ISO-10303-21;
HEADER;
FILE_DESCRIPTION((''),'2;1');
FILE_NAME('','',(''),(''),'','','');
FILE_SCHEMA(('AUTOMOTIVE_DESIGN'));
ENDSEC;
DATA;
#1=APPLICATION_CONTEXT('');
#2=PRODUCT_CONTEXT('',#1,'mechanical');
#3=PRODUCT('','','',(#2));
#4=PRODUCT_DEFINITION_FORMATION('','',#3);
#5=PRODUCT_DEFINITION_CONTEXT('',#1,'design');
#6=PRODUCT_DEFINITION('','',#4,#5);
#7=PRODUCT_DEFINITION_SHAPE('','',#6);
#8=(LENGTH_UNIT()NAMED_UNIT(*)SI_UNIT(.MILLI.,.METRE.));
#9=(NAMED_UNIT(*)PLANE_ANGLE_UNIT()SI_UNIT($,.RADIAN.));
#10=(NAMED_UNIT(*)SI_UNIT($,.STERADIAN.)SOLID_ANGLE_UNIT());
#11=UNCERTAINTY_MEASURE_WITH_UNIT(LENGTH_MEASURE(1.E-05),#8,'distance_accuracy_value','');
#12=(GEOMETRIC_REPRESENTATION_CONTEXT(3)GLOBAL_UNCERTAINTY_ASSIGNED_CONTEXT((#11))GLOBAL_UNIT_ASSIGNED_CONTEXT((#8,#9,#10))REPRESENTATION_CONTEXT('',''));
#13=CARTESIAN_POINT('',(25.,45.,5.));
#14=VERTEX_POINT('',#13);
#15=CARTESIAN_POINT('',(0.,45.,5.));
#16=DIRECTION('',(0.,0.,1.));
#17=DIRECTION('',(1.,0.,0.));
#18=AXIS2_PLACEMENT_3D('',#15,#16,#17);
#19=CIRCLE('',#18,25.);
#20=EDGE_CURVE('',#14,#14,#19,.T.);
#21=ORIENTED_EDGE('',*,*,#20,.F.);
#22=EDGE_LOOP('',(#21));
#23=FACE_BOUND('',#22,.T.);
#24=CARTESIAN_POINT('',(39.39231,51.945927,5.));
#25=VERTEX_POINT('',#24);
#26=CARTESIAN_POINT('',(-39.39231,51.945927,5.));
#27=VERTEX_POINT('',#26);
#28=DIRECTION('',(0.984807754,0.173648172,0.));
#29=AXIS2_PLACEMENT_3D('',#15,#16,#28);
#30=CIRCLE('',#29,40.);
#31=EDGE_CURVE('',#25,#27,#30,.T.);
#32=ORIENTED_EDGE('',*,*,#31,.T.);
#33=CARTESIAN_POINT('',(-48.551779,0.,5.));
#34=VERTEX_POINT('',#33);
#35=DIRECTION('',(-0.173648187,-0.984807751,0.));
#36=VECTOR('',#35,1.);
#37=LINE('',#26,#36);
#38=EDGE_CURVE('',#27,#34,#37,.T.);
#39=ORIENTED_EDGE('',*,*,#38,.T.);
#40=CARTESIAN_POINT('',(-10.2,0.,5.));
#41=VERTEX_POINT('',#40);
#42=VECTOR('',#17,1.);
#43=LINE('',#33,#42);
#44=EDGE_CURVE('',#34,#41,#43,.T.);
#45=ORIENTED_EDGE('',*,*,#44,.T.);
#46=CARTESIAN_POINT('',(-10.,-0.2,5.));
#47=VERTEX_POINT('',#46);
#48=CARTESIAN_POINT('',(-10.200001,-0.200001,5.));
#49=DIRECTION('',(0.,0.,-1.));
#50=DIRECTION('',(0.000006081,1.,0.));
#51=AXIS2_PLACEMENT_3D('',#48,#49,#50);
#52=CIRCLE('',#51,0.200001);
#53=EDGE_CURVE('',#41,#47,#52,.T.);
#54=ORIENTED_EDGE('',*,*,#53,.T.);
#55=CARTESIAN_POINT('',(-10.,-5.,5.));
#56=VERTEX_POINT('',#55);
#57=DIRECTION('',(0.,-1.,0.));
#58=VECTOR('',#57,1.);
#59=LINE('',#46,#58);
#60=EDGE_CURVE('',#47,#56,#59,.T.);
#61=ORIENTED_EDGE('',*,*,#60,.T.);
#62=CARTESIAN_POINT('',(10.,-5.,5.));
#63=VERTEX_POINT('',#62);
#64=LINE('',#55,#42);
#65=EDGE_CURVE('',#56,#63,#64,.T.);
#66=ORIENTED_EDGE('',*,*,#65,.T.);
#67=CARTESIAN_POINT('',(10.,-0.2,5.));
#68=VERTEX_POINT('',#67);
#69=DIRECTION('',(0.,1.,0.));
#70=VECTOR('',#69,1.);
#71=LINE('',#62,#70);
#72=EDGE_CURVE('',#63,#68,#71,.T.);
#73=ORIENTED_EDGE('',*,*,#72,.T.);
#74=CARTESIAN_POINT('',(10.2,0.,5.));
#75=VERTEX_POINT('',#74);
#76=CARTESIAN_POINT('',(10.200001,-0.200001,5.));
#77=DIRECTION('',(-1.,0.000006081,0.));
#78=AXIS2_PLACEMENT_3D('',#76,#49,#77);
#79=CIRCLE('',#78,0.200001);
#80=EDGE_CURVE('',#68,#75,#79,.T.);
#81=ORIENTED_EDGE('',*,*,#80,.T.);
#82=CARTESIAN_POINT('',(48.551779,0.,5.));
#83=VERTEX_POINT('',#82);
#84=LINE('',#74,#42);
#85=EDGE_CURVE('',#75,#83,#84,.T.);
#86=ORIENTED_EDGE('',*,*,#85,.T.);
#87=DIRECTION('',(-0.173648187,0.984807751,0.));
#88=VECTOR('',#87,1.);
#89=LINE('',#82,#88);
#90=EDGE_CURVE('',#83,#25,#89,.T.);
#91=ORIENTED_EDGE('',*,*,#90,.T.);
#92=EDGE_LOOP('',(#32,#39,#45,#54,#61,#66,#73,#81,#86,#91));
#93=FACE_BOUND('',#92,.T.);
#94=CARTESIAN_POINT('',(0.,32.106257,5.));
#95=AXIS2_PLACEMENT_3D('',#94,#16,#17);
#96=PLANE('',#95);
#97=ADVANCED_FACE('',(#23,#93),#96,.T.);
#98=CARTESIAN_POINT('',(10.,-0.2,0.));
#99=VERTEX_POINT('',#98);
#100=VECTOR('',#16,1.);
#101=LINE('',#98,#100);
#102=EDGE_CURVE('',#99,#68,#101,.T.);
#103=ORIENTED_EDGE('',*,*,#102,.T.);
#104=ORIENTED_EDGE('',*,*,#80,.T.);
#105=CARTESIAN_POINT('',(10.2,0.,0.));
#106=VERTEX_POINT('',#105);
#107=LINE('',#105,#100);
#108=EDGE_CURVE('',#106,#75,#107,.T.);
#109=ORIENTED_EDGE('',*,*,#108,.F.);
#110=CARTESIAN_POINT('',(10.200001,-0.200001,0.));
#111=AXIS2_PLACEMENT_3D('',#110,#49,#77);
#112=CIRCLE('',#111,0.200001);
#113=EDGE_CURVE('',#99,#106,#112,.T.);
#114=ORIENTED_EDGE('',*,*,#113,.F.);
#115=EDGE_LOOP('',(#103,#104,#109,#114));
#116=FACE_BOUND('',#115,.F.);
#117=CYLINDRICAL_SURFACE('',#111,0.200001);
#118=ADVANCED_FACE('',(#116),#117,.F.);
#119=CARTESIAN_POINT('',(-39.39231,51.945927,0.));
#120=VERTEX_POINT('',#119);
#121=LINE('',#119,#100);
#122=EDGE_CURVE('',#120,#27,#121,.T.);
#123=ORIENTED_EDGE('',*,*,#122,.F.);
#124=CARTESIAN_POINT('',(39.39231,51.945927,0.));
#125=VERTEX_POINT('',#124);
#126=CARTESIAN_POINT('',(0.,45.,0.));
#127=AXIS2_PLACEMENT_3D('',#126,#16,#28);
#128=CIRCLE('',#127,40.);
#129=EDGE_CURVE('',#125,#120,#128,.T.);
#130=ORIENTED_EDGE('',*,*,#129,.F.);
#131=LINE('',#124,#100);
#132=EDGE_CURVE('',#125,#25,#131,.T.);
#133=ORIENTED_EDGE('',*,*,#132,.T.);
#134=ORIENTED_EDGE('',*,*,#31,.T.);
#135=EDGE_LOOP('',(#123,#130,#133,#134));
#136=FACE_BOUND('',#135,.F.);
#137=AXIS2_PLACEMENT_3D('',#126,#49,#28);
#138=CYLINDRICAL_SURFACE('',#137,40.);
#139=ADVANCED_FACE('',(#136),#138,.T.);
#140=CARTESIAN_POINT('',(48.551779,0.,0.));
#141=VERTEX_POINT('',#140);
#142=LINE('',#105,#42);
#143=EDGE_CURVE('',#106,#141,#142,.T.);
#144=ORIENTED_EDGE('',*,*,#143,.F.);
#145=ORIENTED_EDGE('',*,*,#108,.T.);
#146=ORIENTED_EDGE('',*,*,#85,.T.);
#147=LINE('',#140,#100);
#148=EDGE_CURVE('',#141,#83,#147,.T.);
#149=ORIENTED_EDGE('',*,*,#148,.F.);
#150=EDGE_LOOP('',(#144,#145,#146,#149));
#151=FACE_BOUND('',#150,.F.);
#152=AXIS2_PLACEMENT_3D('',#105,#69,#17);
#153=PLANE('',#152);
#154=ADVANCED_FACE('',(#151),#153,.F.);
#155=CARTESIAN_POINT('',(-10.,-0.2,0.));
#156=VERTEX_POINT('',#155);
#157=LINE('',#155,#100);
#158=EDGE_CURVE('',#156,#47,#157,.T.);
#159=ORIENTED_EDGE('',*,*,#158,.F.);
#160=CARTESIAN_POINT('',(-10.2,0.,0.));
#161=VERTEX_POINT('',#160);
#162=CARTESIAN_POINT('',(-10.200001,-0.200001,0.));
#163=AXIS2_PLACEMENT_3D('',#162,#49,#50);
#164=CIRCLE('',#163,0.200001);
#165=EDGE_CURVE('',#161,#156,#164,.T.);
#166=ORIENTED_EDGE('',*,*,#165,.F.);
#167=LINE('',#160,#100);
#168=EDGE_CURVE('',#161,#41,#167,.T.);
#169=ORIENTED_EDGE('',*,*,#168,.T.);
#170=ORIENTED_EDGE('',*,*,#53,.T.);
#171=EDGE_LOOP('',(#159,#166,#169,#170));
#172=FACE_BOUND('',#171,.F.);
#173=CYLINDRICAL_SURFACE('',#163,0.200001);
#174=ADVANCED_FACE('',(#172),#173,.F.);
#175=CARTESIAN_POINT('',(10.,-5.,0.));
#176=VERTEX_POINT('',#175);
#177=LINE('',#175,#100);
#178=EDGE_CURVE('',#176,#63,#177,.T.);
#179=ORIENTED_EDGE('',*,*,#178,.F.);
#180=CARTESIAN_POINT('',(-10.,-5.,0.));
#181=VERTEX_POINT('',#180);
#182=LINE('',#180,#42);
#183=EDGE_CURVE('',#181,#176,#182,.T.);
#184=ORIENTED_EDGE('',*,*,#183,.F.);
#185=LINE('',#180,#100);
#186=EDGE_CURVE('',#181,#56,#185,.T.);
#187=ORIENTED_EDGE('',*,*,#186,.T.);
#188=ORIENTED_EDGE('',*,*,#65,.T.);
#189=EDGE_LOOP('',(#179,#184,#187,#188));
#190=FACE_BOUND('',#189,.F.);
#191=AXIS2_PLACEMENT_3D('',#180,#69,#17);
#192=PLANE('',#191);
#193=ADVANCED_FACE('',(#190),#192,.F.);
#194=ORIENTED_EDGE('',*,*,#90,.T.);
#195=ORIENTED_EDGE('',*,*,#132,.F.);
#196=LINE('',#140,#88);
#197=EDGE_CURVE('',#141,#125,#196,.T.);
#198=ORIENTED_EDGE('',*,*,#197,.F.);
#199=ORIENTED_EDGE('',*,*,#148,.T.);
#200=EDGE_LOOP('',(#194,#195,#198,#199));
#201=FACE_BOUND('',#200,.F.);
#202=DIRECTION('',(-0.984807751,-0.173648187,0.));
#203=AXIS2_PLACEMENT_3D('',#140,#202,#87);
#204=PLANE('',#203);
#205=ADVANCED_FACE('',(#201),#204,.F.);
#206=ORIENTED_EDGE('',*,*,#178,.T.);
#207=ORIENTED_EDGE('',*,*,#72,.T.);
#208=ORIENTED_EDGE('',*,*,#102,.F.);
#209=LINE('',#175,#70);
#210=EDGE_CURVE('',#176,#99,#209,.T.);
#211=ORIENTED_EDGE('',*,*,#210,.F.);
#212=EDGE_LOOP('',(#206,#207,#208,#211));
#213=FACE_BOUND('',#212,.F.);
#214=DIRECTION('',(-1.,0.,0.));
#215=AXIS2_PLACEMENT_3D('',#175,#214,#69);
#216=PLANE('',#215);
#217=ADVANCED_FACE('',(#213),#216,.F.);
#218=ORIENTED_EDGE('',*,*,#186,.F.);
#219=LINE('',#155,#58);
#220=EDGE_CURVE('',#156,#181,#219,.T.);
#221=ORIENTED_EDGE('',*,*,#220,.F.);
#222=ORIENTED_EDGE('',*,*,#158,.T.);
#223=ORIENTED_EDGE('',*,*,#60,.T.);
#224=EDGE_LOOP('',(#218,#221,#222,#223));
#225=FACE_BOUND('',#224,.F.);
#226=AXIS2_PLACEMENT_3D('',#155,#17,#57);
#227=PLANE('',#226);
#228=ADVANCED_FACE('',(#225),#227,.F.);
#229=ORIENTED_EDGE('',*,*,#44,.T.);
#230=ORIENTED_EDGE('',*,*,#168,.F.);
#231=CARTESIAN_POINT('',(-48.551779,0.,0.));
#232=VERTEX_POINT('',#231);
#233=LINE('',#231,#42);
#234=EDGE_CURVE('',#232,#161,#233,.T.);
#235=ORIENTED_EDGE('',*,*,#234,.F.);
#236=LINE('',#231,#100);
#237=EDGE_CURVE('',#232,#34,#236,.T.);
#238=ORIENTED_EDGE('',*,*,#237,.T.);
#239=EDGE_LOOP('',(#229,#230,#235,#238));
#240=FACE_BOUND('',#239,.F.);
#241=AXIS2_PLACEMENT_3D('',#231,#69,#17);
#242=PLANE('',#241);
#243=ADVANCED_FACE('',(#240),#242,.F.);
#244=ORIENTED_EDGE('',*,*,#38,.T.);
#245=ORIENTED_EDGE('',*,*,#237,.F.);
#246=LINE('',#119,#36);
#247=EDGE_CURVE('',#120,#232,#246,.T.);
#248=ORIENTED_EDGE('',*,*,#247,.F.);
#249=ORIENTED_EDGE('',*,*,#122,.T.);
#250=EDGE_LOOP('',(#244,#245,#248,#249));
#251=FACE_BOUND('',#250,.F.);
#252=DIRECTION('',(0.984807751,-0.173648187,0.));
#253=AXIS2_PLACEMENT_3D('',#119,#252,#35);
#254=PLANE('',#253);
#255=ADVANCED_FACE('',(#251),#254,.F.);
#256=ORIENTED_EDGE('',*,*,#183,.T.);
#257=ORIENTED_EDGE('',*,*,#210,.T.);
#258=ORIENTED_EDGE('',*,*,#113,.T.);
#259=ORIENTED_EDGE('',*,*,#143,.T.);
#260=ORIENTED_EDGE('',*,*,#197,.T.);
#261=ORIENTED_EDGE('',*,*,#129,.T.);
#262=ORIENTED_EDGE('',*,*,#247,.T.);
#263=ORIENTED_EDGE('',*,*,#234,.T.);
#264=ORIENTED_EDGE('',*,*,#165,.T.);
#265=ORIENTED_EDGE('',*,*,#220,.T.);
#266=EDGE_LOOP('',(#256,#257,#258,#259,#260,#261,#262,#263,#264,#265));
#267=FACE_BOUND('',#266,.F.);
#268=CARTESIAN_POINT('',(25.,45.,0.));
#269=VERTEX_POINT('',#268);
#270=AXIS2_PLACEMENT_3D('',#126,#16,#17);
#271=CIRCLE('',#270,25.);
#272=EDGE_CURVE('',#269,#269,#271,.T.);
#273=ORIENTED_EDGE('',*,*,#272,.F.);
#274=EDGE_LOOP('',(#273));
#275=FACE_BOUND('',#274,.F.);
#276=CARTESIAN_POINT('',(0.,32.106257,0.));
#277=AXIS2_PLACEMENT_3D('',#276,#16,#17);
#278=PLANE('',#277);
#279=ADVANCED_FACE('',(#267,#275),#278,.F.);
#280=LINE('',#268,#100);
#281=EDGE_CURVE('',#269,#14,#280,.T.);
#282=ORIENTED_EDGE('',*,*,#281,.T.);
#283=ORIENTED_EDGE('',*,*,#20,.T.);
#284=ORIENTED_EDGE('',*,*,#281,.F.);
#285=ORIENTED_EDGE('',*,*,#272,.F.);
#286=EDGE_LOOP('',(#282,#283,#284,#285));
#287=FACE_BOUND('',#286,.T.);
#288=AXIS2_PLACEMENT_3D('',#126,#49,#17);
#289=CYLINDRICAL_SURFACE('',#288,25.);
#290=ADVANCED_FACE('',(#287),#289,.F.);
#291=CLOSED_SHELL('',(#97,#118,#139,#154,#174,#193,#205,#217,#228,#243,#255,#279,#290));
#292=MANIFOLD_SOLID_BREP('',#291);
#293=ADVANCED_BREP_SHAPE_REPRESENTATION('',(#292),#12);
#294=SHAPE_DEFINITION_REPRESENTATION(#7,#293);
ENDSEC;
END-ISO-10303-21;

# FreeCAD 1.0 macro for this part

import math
import FreeCAD as App
import Part
import Sketcher
from FreeCAD import Vector
Q = App.Units.Quantity

doc = App.newDocument("Part")
body = doc.addObject("PartDesign::Body", "Body")

sketch1 = body.newObject("Sketcher::SketchObject", "Sketch")
sketch1.AttachmentSupport = (doc.getObject("XY_Plane"), [""])
sketch1.MapMode = "FlatFace"
sketch1.addGeometry(Part.LineSegment(Vector(-39.39231, 51.945927, 0), Vector(-48.551779, 0, 0)), False)
sketch1.addGeometry(Part.LineSegment(Vector(-48.551779, 0, 0), Vector(-10.2, 0, 0)), False)
sketch1.addGeometry(Part.ArcOfCircle(Part.Circle(Vector(-10.200001, -0.200001, 0), Vector(0, 0, 1), 0.200001), math.radians(0.000348), math.radians(89.999652)), False)
sketch1.addGeometry(Part.LineSegment(Vector(-10, -0.2, 0), Vector(-10, -5, 0)), False)
sketch1.addGeometry(Part.LineSegment(Vector(-10, -5, 0), Vector(10, -5, 0)), False)
sketch1.addGeometry(Part.LineSegment(Vector(10, -5, 0), Vector(10, -0.2, 0)), False)
sketch1.addGeometry(Part.ArcOfCircle(Part.Circle(Vector(10.200001, -0.200001, 0), Vector(0, 0, 1), 0.200001), math.radians(90.000348), math.radians(179.999652)), False)
sketch1.addGeometry(Part.LineSegment(Vector(10.2, 0, 0), Vector(48.551779, 0, 0)), False)
sketch1.addGeometry(Part.LineSegment(Vector(48.551779, 0, 0), Vector(39.39231, 51.945927, 0)), False)
sketch1.addGeometry(Part.ArcOfCircle(Part.Circle(Vector(0, 45, 0), Vector(0, 0, 1), 40), math.radians(10), math.radians(170)), False)
sketch1.addGeometry(Part.Circle(Vector(0, 45, 0), Vector(0, 0, 1), 25), False)
sketch1.addConstraint(Sketcher.Constraint("Coincident", 0, 2, 1, 1))
sketch1.addConstraint(Sketcher.Constraint("Coincident", 1, 2, 2, 2))
sketch1.addConstraint(Sketcher.Constraint("Coincident", 2, 1, 3, 1))
sketch1.addConstraint(Sketcher.Constraint("Coincident", 3, 2, 4, 1))
sketch1.addConstraint(Sketcher.Constraint("Coincident", 4, 2, 5, 1))
sketch1.addConstraint(Sketcher.Constraint("Coincident", 5, 2, 6, 2))
sketch1.addConstraint(Sketcher.Constraint("Coincident", 6, 1, 7, 1))
sketch1.addConstraint(Sketcher.Constraint("Coincident", 7, 2, 8, 1))
sketch1.addConstraint(Sketcher.Constraint("Tangent", 8, 2, 9, 1))
sketch1.addConstraint(Sketcher.Constraint("Tangent", 9, 2, 0, 1))
sketch1.addConstraint(Sketcher.Constraint("Horizontal", 1))
sketch1.addConstraint(Sketcher.Constraint("Vertical", 3))
sketch1.addConstraint(Sketcher.Constraint("Horizontal", 4))
sketch1.addConstraint(Sketcher.Constraint("Vertical", 5))
sketch1.addConstraint(Sketcher.Constraint("Horizontal", 7))
sketch1.addConstraint(Sketcher.Constraint("Coincident", 10, 3, 9, 3))
sketch1.addConstraint(Sketcher.Constraint("Equal", 2, 6))
sketch1.addConstraint(Sketcher.Constraint("Symmetric", 1, 2, 6, 1, -1, 1))
sketch1.addConstraint(Sketcher.Constraint("Symmetric", 2, 3, 6, 3, -2))
sketch1.addConstraint(Sketcher.Constraint("Symmetric", 8, 2, 9, 2, -2))
sketch1.addConstraint(Sketcher.Constraint("Horizontal", 6, 3, 2, 1))
sketch1.addConstraint(Sketcher.Constraint("Horizontal", 2, 1, 5, 2))
sketch1.addConstraint(Sketcher.Constraint("Vertical", 2, 3, 1, 2))
sketch1.addConstraint(Sketcher.Constraint("Diameter", 10, Q("50 mm")))
sketch1.addConstraint(Sketcher.Constraint("Radius", 9, Q("40 mm")))
sketch1.addConstraint(Sketcher.Constraint("Radius", 2, Q("0.200001 mm")))
sketch1.addConstraint(Sketcher.Constraint("DistanceX", 4, 1, 4, 2, Q("20 mm")))
sketch1.addConstraint(Sketcher.Constraint("Angle", 0, Q("-100.000001 deg")))
sketch1.addConstraint(Sketcher.Constraint("DistanceY", 3, 2, 3, 1, Q("4.8 mm")))
sketch1.addConstraint(Sketcher.Constraint("DistanceY", -1, 1, 9, 3, Q("45 mm")))
pad1 = body.newObject("PartDesign::Pad", "Pad")
pad1.Profile = sketch1
pad1.Length = 5

doc.recompute()
